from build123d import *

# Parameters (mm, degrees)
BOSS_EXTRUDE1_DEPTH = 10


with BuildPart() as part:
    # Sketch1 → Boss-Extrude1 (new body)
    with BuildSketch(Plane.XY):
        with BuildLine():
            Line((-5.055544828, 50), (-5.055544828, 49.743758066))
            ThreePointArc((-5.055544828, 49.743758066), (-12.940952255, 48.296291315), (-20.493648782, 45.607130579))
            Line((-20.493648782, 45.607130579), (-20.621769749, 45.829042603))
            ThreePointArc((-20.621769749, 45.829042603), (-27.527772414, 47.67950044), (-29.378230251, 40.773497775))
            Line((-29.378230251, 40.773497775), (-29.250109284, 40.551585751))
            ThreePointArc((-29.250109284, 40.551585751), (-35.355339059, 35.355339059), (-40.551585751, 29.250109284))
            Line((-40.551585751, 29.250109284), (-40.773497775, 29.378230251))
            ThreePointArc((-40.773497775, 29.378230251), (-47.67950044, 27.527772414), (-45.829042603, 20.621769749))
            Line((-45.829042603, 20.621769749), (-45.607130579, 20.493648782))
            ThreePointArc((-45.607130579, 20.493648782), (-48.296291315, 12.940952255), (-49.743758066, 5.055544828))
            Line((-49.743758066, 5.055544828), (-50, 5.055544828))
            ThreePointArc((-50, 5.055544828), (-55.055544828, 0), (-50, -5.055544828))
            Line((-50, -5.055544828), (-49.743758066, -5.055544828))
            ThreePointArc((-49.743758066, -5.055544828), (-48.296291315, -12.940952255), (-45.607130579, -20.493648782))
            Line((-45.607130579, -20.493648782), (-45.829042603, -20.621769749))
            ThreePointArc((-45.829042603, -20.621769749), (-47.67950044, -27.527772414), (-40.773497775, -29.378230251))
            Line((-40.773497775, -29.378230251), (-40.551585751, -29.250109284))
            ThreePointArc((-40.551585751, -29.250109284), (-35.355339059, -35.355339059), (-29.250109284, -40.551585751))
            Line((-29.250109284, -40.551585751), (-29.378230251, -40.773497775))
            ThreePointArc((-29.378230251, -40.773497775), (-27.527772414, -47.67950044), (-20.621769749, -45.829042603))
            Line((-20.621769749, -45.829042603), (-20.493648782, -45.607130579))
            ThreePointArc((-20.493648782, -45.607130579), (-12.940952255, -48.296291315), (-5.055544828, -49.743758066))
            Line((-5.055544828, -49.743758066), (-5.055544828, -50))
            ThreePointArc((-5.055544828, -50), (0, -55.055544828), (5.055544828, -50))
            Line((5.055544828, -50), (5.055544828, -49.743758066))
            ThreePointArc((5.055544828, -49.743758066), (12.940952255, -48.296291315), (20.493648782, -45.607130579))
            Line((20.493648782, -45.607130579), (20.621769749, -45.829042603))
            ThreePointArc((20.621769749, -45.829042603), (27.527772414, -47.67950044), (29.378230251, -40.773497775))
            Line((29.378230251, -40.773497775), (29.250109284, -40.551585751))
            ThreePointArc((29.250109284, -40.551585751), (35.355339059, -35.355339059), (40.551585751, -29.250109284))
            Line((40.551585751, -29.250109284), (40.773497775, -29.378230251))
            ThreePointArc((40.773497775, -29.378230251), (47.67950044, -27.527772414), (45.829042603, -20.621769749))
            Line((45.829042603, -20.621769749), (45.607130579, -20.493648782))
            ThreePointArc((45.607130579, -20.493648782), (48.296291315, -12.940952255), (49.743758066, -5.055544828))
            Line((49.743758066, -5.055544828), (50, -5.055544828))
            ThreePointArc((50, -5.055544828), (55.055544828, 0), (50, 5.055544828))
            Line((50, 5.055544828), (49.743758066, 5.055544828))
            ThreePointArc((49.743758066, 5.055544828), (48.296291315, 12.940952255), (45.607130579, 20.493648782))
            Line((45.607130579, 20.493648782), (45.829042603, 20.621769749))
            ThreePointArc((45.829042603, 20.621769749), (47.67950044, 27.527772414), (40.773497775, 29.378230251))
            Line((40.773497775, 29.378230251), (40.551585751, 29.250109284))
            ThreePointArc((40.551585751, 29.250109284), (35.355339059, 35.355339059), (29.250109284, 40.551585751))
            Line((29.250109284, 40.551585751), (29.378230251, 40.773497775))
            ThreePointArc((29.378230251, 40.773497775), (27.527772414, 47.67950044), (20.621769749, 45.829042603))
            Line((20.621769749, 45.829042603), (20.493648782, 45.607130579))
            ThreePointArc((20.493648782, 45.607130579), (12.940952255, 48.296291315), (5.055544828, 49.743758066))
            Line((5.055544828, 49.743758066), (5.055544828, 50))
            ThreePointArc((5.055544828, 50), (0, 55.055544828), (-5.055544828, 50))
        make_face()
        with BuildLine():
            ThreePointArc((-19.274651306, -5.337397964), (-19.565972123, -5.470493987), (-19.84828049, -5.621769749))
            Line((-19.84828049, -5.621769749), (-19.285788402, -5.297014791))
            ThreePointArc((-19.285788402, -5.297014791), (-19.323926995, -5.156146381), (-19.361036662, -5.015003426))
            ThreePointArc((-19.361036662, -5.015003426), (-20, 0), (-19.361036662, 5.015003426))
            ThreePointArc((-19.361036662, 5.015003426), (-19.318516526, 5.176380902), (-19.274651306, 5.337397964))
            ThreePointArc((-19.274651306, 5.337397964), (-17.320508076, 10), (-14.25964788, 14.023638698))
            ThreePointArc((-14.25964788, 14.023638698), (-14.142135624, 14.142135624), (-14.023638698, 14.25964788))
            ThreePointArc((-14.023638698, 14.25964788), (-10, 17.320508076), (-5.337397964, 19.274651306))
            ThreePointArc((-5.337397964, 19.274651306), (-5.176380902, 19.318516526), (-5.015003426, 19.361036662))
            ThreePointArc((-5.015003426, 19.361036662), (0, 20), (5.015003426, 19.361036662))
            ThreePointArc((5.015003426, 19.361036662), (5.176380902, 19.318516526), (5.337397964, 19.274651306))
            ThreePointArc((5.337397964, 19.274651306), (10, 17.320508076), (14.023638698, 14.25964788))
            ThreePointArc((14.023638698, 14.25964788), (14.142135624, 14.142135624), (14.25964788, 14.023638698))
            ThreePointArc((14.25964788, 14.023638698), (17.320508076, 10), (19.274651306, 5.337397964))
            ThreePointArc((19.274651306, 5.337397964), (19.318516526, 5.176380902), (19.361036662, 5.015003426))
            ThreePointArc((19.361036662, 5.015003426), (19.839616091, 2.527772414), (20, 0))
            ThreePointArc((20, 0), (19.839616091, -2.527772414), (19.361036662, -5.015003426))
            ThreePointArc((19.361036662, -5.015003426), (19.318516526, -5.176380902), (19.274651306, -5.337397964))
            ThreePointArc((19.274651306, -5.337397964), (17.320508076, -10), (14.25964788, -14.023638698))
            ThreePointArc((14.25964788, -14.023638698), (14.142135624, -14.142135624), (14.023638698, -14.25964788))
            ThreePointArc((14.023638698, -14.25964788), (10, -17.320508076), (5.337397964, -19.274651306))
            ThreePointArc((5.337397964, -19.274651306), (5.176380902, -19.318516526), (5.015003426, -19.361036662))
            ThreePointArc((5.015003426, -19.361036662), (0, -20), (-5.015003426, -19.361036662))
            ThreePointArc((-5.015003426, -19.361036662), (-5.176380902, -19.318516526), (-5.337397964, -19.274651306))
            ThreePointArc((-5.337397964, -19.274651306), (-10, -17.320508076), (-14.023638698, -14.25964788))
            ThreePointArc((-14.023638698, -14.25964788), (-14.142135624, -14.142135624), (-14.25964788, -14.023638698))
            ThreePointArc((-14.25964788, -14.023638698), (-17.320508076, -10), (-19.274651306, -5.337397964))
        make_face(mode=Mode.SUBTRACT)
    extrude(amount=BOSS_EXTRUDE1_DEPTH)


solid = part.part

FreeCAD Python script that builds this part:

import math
import FreeCAD as App
import Part
import Sketcher

doc = App.newDocument("Part")
body = doc.addObject("PartDesign::Body", "Body")

# Sketch on XY plane
sketch1 = doc.addObject("Sketcher::SketchObject", "Sketch")
body.addObject(sketch1)
sketch1.AttachmentSupport = (doc.XY_Plane, [""])
sketch1.MapMode = "FlatFace"
sketch1.addGeometry(Part.LineSegment(App.Vector(-5.055545, 50, 0), App.Vector(-5.055545, 49.743758, 0)), False)
sketch1.addGeometry(Part.ArcOfCircle(Part.Circle(App.Vector(0, 0, 0), App.Vector(0, 0, 1), 50), math.radians(95.803144), math.radians(114.196856)), False)
sketch1.addGeometry(Part.LineSegment(App.Vector(-20.493649, 45.607131, 0), App.Vector(-20.62177, 45.829043, 0)), False)
sketch1.addGeometry(Part.ArcOfCircle(Part.Circle(App.Vector(-25, 43.30127, 0), App.Vector(0, 0, 1), 5.055545), math.radians(30), math.radians(210)), False)
sketch1.addGeometry(Part.LineSegment(App.Vector(-29.37823, 40.773498, 0), App.Vector(-29.250109, 40.551586, 0)), False)
sketch1.addGeometry(Part.ArcOfCircle(Part.Circle(App.Vector(0, 0, 0), App.Vector(0, 0, 1), 50), math.radians(125.803144), math.radians(144.196856)), False)
sketch1.addGeometry(Part.LineSegment(App.Vector(-40.551586, 29.250109, 0), App.Vector(-40.773498, 29.37823, 0)), False)
sketch1.addGeometry(Part.ArcOfCircle(Part.Circle(App.Vector(-43.30127, 25, 0), App.Vector(0, 0, 1), 5.055545), math.radians(60), math.radians(240)), False)
sketch1.addGeometry(Part.LineSegment(App.Vector(-45.829043, 20.62177, 0), App.Vector(-45.607131, 20.493649, 0)), False)
sketch1.addGeometry(Part.ArcOfCircle(Part.Circle(App.Vector(0, 0, 0), App.Vector(0, 0, 1), 50), math.radians(155.803144), math.radians(174.196856)), False)
sketch1.addGeometry(Part.LineSegment(App.Vector(-49.743758, 5.055545, 0), App.Vector(-50, 5.055545, 0)), False)
sketch1.addGeometry(Part.ArcOfCircle(Part.Circle(App.Vector(-50, 0, 0), App.Vector(0, 0, 1), 5.055545), math.radians(90), math.radians(270)), False)
sketch1.addGeometry(Part.LineSegment(App.Vector(-50, -5.055545, 0), App.Vector(-49.743758, -5.055545, 0)), False)
sketch1.addGeometry(Part.ArcOfCircle(Part.Circle(App.Vector(0, 0, 0), App.Vector(0, 0, 1), 50), math.radians(-174.196856), math.radians(-155.803144)), False)
sketch1.addGeometry(Part.LineSegment(App.Vector(-45.607131, -20.493649, 0), App.Vector(-45.829043, -20.62177, 0)), False)
sketch1.addGeometry(Part.ArcOfCircle(Part.Circle(App.Vector(-43.30127, -25, 0), App.Vector(0, 0, 1), 5.055545), math.radians(120), math.radians(300)), False)
sketch1.addGeometry(Part.LineSegment(App.Vector(-40.773498, -29.37823, 0), App.Vector(-40.551586, -29.250109, 0)), False)
sketch1.addGeometry(Part.ArcOfCircle(Part.Circle(App.Vector(0, 0, 0), App.Vector(0, 0, 1), 50), math.radians(-144.196856), math.radians(-125.803144)), False)
sketch1.addGeometry(Part.LineSegment(App.Vector(-29.250109, -40.551586, 0), App.Vector(-29.37823, -40.773498, 0)), False)
sketch1.addGeometry(Part.ArcOfCircle(Part.Circle(App.Vector(-25, -43.30127, 0), App.Vector(0, 0, 1), 5.055545), math.radians(150), math.radians(330)), False)
sketch1.addGeometry(Part.LineSegment(App.Vector(-20.62177, -45.829043, 0), App.Vector(-20.493649, -45.607131, 0)), False)
sketch1.addGeometry(Part.ArcOfCircle(Part.Circle(App.Vector(0, 0, 0), App.Vector(0, 0, 1), 50), math.radians(-114.196856), math.radians(-95.803144)), False)
sketch1.addGeometry(Part.LineSegment(App.Vector(-5.055545, -49.743758, 0), App.Vector(-5.055545, -50, 0)), False)
sketch1.addGeometry(Part.ArcOfCircle(Part.Circle(App.Vector(0, -50, 0), App.Vector(0, 0, 1), 5.055545), math.radians(180), math.radians(360)), False)
sketch1.addGeometry(Part.LineSegment(App.Vector(5.055545, -50, 0), App.Vector(5.055545, -49.743758, 0)), False)
sketch1.addGeometry(Part.ArcOfCircle(Part.Circle(App.Vector(0, 0, 0), App.Vector(0, 0, 1), 50), math.radians(-84.196856), math.radians(-65.803144)), False)
sketch1.addGeometry(Part.LineSegment(App.Vector(20.493649, -45.607131, 0), App.Vector(20.62177, -45.829043, 0)), False)
sketch1.addGeometry(Part.ArcOfCircle(Part.Circle(App.Vector(25, -43.30127, 0), App.Vector(0, 0, 1), 5.055545), math.radians(-150), math.radians(30)), False)
sketch1.addGeometry(Part.LineSegment(App.Vector(29.37823, -40.773498, 0), App.Vector(29.250109, -40.551586, 0)), False)
sketch1.addGeometry(Part.ArcOfCircle(Part.Circle(App.Vector(0, 0, 0), App.Vector(0, 0, 1), 50), math.radians(-54.196856), math.radians(-35.803144)), False)
sketch1.addGeometry(Part.LineSegment(App.Vector(40.551586, -29.250109, 0), App.Vector(40.773498, -29.37823, 0)), False)
sketch1.addGeometry(Part.ArcOfCircle(Part.Circle(App.Vector(43.30127, -25, 0), App.Vector(0, 0, 1), 5.055545), math.radians(-120), math.radians(60)), False)
sketch1.addGeometry(Part.LineSegment(App.Vector(45.829043, -20.62177, 0), App.Vector(45.607131, -20.493649, 0)), False)
sketch1.addGeometry(Part.ArcOfCircle(Part.Circle(App.Vector(0, 0, 0), App.Vector(0, 0, 1), 50), math.radians(-24.196856), math.radians(-5.803144)), False)
sketch1.addGeometry(Part.LineSegment(App.Vector(49.743758, -5.055545, 0), App.Vector(50, -5.055545, 0)), False)
sketch1.addGeometry(Part.ArcOfCircle(Part.Circle(App.Vector(50, 0, 0), App.Vector(0, 0, 1), 5.055545), math.radians(-90), math.radians(90)), False)
sketch1.addGeometry(Part.LineSegment(App.Vector(50, 5.055545, 0), App.Vector(49.743758, 5.055545, 0)), False)
sketch1.addGeometry(Part.ArcOfCircle(Part.Circle(App.Vector(0, 0, 0), App.Vector(0, 0, 1), 50), math.radians(5.803144), math.radians(24.196856)), False)
sketch1.addGeometry(Part.LineSegment(App.Vector(45.607131, 20.493649, 0), App.Vector(45.829043, 20.62177, 0)), False)
sketch1.addGeometry(Part.ArcOfCircle(Part.Circle(App.Vector(43.30127, 25, 0), App.Vector(0, 0, 1), 5.055545), math.radians(-60), math.radians(120)), False)
sketch1.addGeometry(Part.LineSegment(App.Vector(40.773498, 29.37823, 0), App.Vector(40.551586, 29.250109, 0)), False)
sketch1.addGeometry(Part.ArcOfCircle(Part.Circle(App.Vector(0, 0, 0), App.Vector(0, 0, 1), 50), math.radians(35.803144), math.radians(54.196856)), False)
sketch1.addGeometry(Part.LineSegment(App.Vector(29.250109, 40.551586, 0), App.Vector(29.37823, 40.773498, 0)), False)
sketch1.addGeometry(Part.ArcOfCircle(Part.Circle(App.Vector(25, 43.30127, 0), App.Vector(0, 0, 1), 5.055545), math.radians(-30), math.radians(150)), False)
sketch1.addGeometry(Part.LineSegment(App.Vector(20.62177, 45.829043, 0), App.Vector(20.493649, 45.607131, 0)), False)
sketch1.addGeometry(Part.ArcOfCircle(Part.Circle(App.Vector(0, 0, 0), App.Vector(0, 0, 1), 50), math.radians(65.803144), math.radians(84.196856)), False)
sketch1.addGeometry(Part.LineSegment(App.Vector(5.055545, 49.743758, 0), App.Vector(5.055545, 50, 0)), False)
sketch1.addGeometry(Part.ArcOfCircle(Part.Circle(App.Vector(0, 50, 0), App.Vector(0, 0, 1), 5.055545), math.radians(0), math.radians(180)), False)
sketch1.addGeometry(Part.ArcOfCircle(Part.Circle(App.Vector(0, 0, 0), App.Vector(0, 0, 1), 20), math.radians(-164.521908), math.radians(-135.478092)), False)
sketch1.addGeometry(Part.ArcOfCircle(Part.Circle(App.Vector(-17.320508, -10, 0), App.Vector(0, 0, 1), 5.055545), math.radians(112.739046), math.radians(120)), False)
sketch1.addGeometry(Part.LineSegment(App.Vector(-19.84828, -5.62177, 0), App.Vector(-19.285788, -5.297015, 0)), False)
sketch1.addGeometry(Part.ArcOfCircle(Part.Circle(App.Vector(-0.000022, -0.000006, 0), App.Vector(0, 0, 1), 19.999978), math.radians(-165.478093), math.radians(-164.641916)), False)
sketch1.addGeometry(Part.ArcOfCircle(Part.Circle(App.Vector(0, 0, 0), App.Vector(0, 0, 1), 20), math.radians(165.478092), math.radians(194.521908)), False)
sketch1.addGeometry(Part.ArcOfCircle(Part.Circle(App.Vector(-0.000011, 0.000003, 0), App.Vector(0, 0, 1), 19.999989), math.radians(164.521908), math.radians(165.478092)), False)
sketch1.addGeometry(Part.ArcOfCircle(Part.Circle(App.Vector(0, 0, 0), App.Vector(0, 0, 1), 20), math.radians(135.478092), math.radians(164.521908)), False)
sketch1.addGeometry(Part.ArcOfCircle(Part.Circle(App.Vector(-0.000011, 0.000011, 0), App.Vector(0, 0, 1), 19.999984), math.radians(134.521908), math.radians(135.478092)), False)
sketch1.addGeometry(Part.ArcOfCircle(Part.Circle(App.Vector(0, 0, 0), App.Vector(0, 0, 1), 20), math.radians(105.478092), math.radians(134.521908)), False)
sketch1.addGeometry(Part.ArcOfCircle(Part.Circle(App.Vector(-0.000003, 0.000011, 0), App.Vector(0, 0, 1), 19.999989), math.radians(104.521908), math.radians(105.478092)), False)
sketch1.addGeometry(Part.ArcOfCircle(Part.Circle(App.Vector(0, 0, 0), App.Vector(0, 0, 1), 20), math.radians(75.478092), math.radians(104.521908)), False)
sketch1.addGeometry(Part.ArcOfCircle(Part.Circle(App.Vector(0.000003, 0.000011, 0), App.Vector(0, 0, 1), 19.999989), math.radians(74.521908), math.radians(75.478092)), False)
sketch1.addGeometry(Part.ArcOfCircle(Part.Circle(App.Vector(0, 0, 0), App.Vector(0, 0, 1), 20), math.radians(45.478092), math.radians(74.521908)), False)
sketch1.addGeometry(Part.ArcOfCircle(Part.Circle(App.Vector(0.000011, 0.000011, 0), App.Vector(0, 0, 1), 19.999984), math.radians(44.521908), math.radians(45.478092)), False)
sketch1.addGeometry(Part.ArcOfCircle(Part.Circle(App.Vector(0, 0, 0), App.Vector(0, 0, 1), 20), math.radians(15.478092), math.radians(44.521908)), False)
sketch1.addGeometry(Part.ArcOfCircle(Part.Circle(App.Vector(0.000011, 0.000003, 0), App.Vector(0, 0, 1), 19.999989), math.radians(14.521908), math.radians(15.478092)), False)
sketch1.addGeometry(Part.ArcOfCircle(Part.Circle(App.Vector(0, 0, 0), App.Vector(0, 0, 1), 20), math.radians(0), math.radians(14.521908)), False)
sketch1.addGeometry(Part.ArcOfCircle(Part.Circle(App.Vector(0, 0, 0), App.Vector(0, 0, 1), 20), math.radians(-14.521908), math.radians(0)), False)
sketch1.addGeometry(Part.ArcOfCircle(Part.Circle(App.Vector(0.000011, -0.000003, 0), App.Vector(0, 0, 1), 19.999989), math.radians(-15.478092), math.radians(-14.521908)), False)
sketch1.addGeometry(Part.ArcOfCircle(Part.Circle(App.Vector(0, 0, 0), App.Vector(0, 0, 1), 20), math.radians(-44.521908), math.radians(-15.478092)), False)
sketch1.addGeometry(Part.ArcOfCircle(Part.Circle(App.Vector(0.000011, -0.000011, 0), App.Vector(0, 0, 1), 19.999984), math.radians(-45.478092), math.radians(-44.521908)), False)
sketch1.addGeometry(Part.ArcOfCircle(Part.Circle(App.Vector(0, 0, 0), App.Vector(0, 0, 1), 20), math.radians(-74.521908), math.radians(-45.478092)), False)
sketch1.addGeometry(Part.ArcOfCircle(Part.Circle(App.Vector(0.000003, -0.000011, 0), App.Vector(0, 0, 1), 19.999989), math.radians(-75.478092), math.radians(-74.521908)), False)
sketch1.addGeometry(Part.ArcOfCircle(Part.Circle(App.Vector(0, 0, 0), App.Vector(0, 0, 1), 20), math.radians(-104.521908), math.radians(-75.478092)), False)
sketch1.addGeometry(Part.ArcOfCircle(Part.Circle(App.Vector(-0.000003, -0.000011, 0), App.Vector(0, 0, 1), 19.999989), math.radians(-105.478092), math.radians(-104.521908)), False)
sketch1.addGeometry(Part.ArcOfCircle(Part.Circle(App.Vector(0, 0, 0), App.Vector(0, 0, 1), 20), math.radians(-134.521908), math.radians(-105.478092)), False)
sketch1.addGeometry(Part.ArcOfCircle(Part.Circle(App.Vector(-0.000011, -0.000011, 0), App.Vector(0, 0, 1), 19.999984), math.radians(-135.478092), math.radians(-134.521908)), False)
sketch1.addConstraint(Sketcher.Constraint("Coincident", 0, 2, 1, 1))
sketch1.addConstraint(Sketcher.Constraint("Coincident", 1, 2, 2, 1))
sketch1.addConstraint(Sketcher.Constraint("Tangent", 2, 2, 3, 1))
sketch1.addConstraint(Sketcher.Constraint("Tangent", 3, 2, 4, 1))
sketch1.addConstraint(Sketcher.Constraint("Coincident", 4, 2, 5, 1))
sketch1.addConstraint(Sketcher.Constraint("Coincident", 5, 2, 6, 1))
sketch1.addConstraint(Sketcher.Constraint("Tangent", 6, 2, 7, 1))
sketch1.addConstraint(Sketcher.Constraint("Tangent", 7, 2, 8, 1))
sketch1.addConstraint(Sketcher.Constraint("Coincident", 8, 2, 9, 1))
sketch1.addConstraint(Sketcher.Constraint("Coincident", 9, 2, 10, 1))
sketch1.addConstraint(Sketcher.Constraint("Tangent", 10, 2, 11, 1))
sketch1.addConstraint(Sketcher.Constraint("Tangent", 11, 2, 12, 1))
sketch1.addConstraint(Sketcher.Constraint("Coincident", 12, 2, 13, 1))
sketch1.addConstraint(Sketcher.Constraint("Coincident", 13, 2, 14, 1))
sketch1.addConstraint(Sketcher.Constraint("Tangent", 14, 2, 15, 1))
sketch1.addConstraint(Sketcher.Constraint("Tangent", 15, 2, 16, 1))
sketch1.addConstraint(Sketcher.Constraint("Coincident", 16, 2, 17, 1))
sketch1.addConstraint(Sketcher.Constraint("Coincident", 17, 2, 18, 1))
sketch1.addConstraint(Sketcher.Constraint("Tangent", 18, 2, 19, 1))
sketch1.addConstraint(Sketcher.Constraint("Tangent", 19, 2, 20, 1))
sketch1.addConstraint(Sketcher.Constraint("Coincident", 20, 2, 21, 1))
sketch1.addConstraint(Sketcher.Constraint("Coincident", 21, 2, 22, 1))
sketch1.addConstraint(Sketcher.Constraint("Tangent", 22, 2, 23, 1))
sketch1.addConstraint(Sketcher.Constraint("Tangent", 23, 2, 24, 1))
sketch1.addConstraint(Sketcher.Constraint("Coincident", 24, 2, 25, 1))
sketch1.addConstraint(Sketcher.Constraint("Coincident", 25, 2, 26, 1))
sketch1.addConstraint(Sketcher.Constraint("Tangent", 26, 2, 27, 1))
sketch1.addConstraint(Sketcher.Constraint("Tangent", 27, 2, 28, 1))
sketch1.addConstraint(Sketcher.Constraint("Coincident", 28, 2, 29, 1))
sketch1.addConstraint(Sketcher.Constraint("Coincident", 29, 2, 30, 1))
sketch1.addConstraint(Sketcher.Constraint("Tangent", 30, 2, 31, 1))
sketch1.addConstraint(Sketcher.Constraint("Tangent", 31, 2, 32, 1))
sketch1.addConstraint(Sketcher.Constraint("Coincident", 32, 2, 33, 1))
sketch1.addConstraint(Sketcher.Constraint("Coincident", 33, 2, 34, 1))
sketch1.addConstraint(Sketcher.Constraint("Tangent", 34, 2, 35, 1))
sketch1.addConstraint(Sketcher.Constraint("Tangent", 35, 2, 36, 1))
sketch1.addConstraint(Sketcher.Constraint("Coincident", 36, 2, 37, 1))
sketch1.addConstraint(Sketcher.Constraint("Coincident", 37, 2, 38, 1))
sketch1.addConstraint(Sketcher.Constraint("Tangent", 38, 2, 39, 1))
sketch1.addConstraint(Sketcher.Constraint("Tangent", 39, 2, 40, 1))
sketch1.addConstraint(Sketcher.Constraint("Coincident", 40, 2, 41, 1))
sketch1.addConstraint(Sketcher.Constraint("Coincident", 41, 2, 42, 1))
sketch1.addConstraint(Sketcher.Constraint("Tangent", 42, 2, 43, 1))
sketch1.addConstraint(Sketcher.Constraint("Tangent", 43, 2, 44, 1))
sketch1.addConstraint(Sketcher.Constraint("Coincident", 44, 2, 45, 1))
sketch1.addConstraint(Sketcher.Constraint("Coincident", 45, 2, 46, 1))
sketch1.addConstraint(Sketcher.Constraint("Tangent", 46, 2, 47, 1))
sketch1.addConstraint(Sketcher.Constraint("Tangent", 47, 2, 0, 1))
sketch1.addConstraint(Sketcher.Constraint("Coincident", 48, 1, 49, 1))
sketch1.addConstraint(Sketcher.Constraint("Tangent", 49, 2, 50, 1))
sketch1.addConstraint(Sketcher.Constraint("Coincident", 50, 2, 51, 2))
sketch1.addConstraint(Sketcher.Constraint("Tangent", 51, 1, 52, 2))
sketch1.addConstraint(Sketcher.Constraint("Tangent", 52, 1, 53, 2))
sketch1.addConstraint(Sketcher.Constraint("Tangent", 53, 1, 54, 2))
sketch1.addConstraint(Sketcher.Constraint("Tangent", 54, 1, 55, 2))
sketch1.addConstraint(Sketcher.Constraint("Tangent", 55, 1, 56, 2))
sketch1.addConstraint(Sketcher.Constraint("Tangent", 56, 1, 57, 2))
sketch1.addConstraint(Sketcher.Constraint("Tangent", 57, 1, 58, 2))
sketch1.addConstraint(Sketcher.Constraint("Tangent", 58, 1, 59, 2))
sketch1.addConstraint(Sketcher.Constraint("Tangent", 59, 1, 60, 2))
sketch1.addConstraint(Sketcher.Constraint("Tangent", 60, 1, 61, 2))
sketch1.addConstraint(Sketcher.Constraint("Tangent", 61, 1, 62, 2))
sketch1.addConstraint(Sketcher.Constraint("Tangent", 62, 1, 63, 2))
sketch1.addConstraint(Sketcher.Constraint("Tangent", 63, 1, 64, 2))
sketch1.addConstraint(Sketcher.Constraint("Tangent", 64, 1, 65, 2))
sketch1.addConstraint(Sketcher.Constraint("Tangent", 65, 1, 66, 2))
sketch1.addConstraint(Sketcher.Constraint("Tangent", 66, 1, 67, 2))
sketch1.addConstraint(Sketcher.Constraint("Tangent", 67, 1, 68, 2))
sketch1.addConstraint(Sketcher.Constraint("Tangent", 68, 1, 69, 2))
sketch1.addConstraint(Sketcher.Constraint("Tangent", 69, 1, 70, 2))
sketch1.addConstraint(Sketcher.Constraint("Tangent", 70, 1, 71, 2))
sketch1.addConstraint(Sketcher.Constraint("Tangent", 71, 1, 72, 2))
sketch1.addConstraint(Sketcher.Constraint("Tangent", 72, 1, 73, 2))
sketch1.addConstraint(Sketcher.Constraint("Tangent", 73, 1, 74, 2))
sketch1.addConstraint(Sketcher.Constraint("Tangent", 74, 1, 48, 2))
sketch1.addConstraint(Sketcher.Constraint("Vertical", 0))
sketch1.addConstraint(Sketcher.Constraint("Horizontal", 10))
sketch1.addConstraint(Sketcher.Constraint("Horizontal", 12))
sketch1.addConstraint(Sketcher.Constraint("Vertical", 22))
sketch1.addConstraint(Sketcher.Constraint("Vertical", 24))
sketch1.addConstraint(Sketcher.Constraint("Horizontal", 34))
sketch1.addConstraint(Sketcher.Constraint("Horizontal", 36))
sketch1.addConstraint(Sketcher.Constraint("Vertical", 46))
sketch1.addConstraint(Sketcher.Constraint("Coincident", 1, 3, -1, 1))
sketch1.addConstraint(Sketcher.Constraint("Coincident", 5, 3, -1, 1))
sketch1.addConstraint(Sketcher.Constraint("Coincident", 9, 3, -1, 1))
sketch1.addConstraint(Sketcher.Constraint("Coincident", 13, 3, -1, 1))
sketch1.addConstraint(Sketcher.Constraint("Coincident", 17, 3, -1, 1))
sketch1.addConstraint(Sketcher.Constraint("Coincident", 21, 3, -1, 1))
sketch1.addConstraint(Sketcher.Constraint("Coincident", 25, 3, -1, 1))
sketch1.addConstraint(Sketcher.Constraint("Coincident", 29, 3, -1, 1))
sketch1.addConstraint(Sketcher.Constraint("Coincident", 33, 3, -1, 1))
sketch1.addConstraint(Sketcher.Constraint("Coincident", 37, 3, -1, 1))
sketch1.addConstraint(Sketcher.Constraint("Coincident", 41, 3, -1, 1))
sketch1.addConstraint(Sketcher.Constraint("Coincident", 45, 3, -1, 1))
sketch1.addConstraint(Sketcher.Constraint("Coincident", 48, 3, -1, 1))
sketch1.addConstraint(Sketcher.Constraint("Coincident", 52, 3, -1, 1))
sketch1.addConstraint(Sketcher.Constraint("Coincident", 54, 3, -1, 1))
sketch1.addConstraint(Sketcher.Constraint("Coincident", 56, 3, -1, 1))
sketch1.addConstraint(Sketcher.Constraint("Coincident", 58, 3, -1, 1))
sketch1.addConstraint(Sketcher.Constraint("Coincident", 60, 3, -1, 1))
sketch1.addConstraint(Sketcher.Constraint("Coincident", 62, 3, -1, 1))
sketch1.addConstraint(Sketcher.Constraint("Coincident", 64, 3, -1, 1))
sketch1.addConstraint(Sketcher.Constraint("Coincident", 67, 3, -1, 1))
sketch1.addConstraint(Sketcher.Constraint("Coincident", 69, 3, -1, 1))
sketch1.addConstraint(Sketcher.Constraint("Coincident", 71, 3, -1, 1))
sketch1.addConstraint(Sketcher.Constraint("Coincident", 73, 3, -1, 1))
sketch1.addConstraint(Sketcher.Constraint("Equal", 1, 5))
sketch1.addConstraint(Sketcher.Constraint("Equal", 3, 7))
sketch1.addConstraint(Sketcher.Constraint("Equal", 5, 9))
sketch1.addConstraint(Sketcher.Constraint("Equal", 7, 11))
sketch1.addConstraint(Sketcher.Constraint("Equal", 9, 13))
sketch1.addConstraint(Sketcher.Constraint("Equal", 11, 15))
sketch1.addConstraint(Sketcher.Constraint("Equal", 13, 17))
sketch1.addConstraint(Sketcher.Constraint("Equal", 15, 19))
sketch1.addConstraint(Sketcher.Constraint("Equal", 17, 21))
sketch1.addConstraint(Sketcher.Constraint("Equal", 19, 23))
sketch1.addConstraint(Sketcher.Constraint("Equal", 21, 25))
sketch1.addConstraint(Sketcher.Constraint("Equal", 23, 27))
sketch1.addConstraint(Sketcher.Constraint("Equal", 25, 29))
sketch1.addConstraint(Sketcher.Constraint("Equal", 27, 31))
sketch1.addConstraint(Sketcher.Constraint("Equal", 29, 33))
sketch1.addConstraint(Sketcher.Constraint("Equal", 31, 35))
sketch1.addConstraint(Sketcher.Constraint("Equal", 33, 37))
sketch1.addConstraint(Sketcher.Constraint("Equal", 35, 39))
sketch1.addConstraint(Sketcher.Constraint("Equal", 37, 41))
sketch1.addConstraint(Sketcher.Constraint("Equal", 39, 43))
sketch1.addConstraint(Sketcher.Constraint("Equal", 41, 45))
sketch1.addConstraint(Sketcher.Constraint("Equal", 43, 47))
sketch1.addConstraint(Sketcher.Constraint("Equal", 47, 49))
sketch1.addConstraint(Sketcher.Constraint("Equal", 64, 65))
sketch1.addConstraint(Sketcher.Constraint("Symmetric", 3, 3, 27, 3, -1, 1))
sketch1.addConstraint(Sketcher.Constraint("Symmetric", 7, 3, 31, 3, -1, 1))
sketch1.addConstraint(Sketcher.Constraint("Symmetric", 11, 3, 35, 3, -1, 1))
sketch1.addConstraint(Sketcher.Constraint("Symmetric", 15, 3, 39, 3, -1, 1))
sketch1.addConstraint(Sketcher.Constraint("Symmetric", 19, 3, 43, 3, -1, 1))
sketch1.addConstraint(Sketcher.Constraint("Symmetric", 23, 3, 47, 3, -1, 1))
sketch1.addConstraint(Sketcher.Constraint("Symmetric", 19, 3, 27, 3, -2))
sketch1.addConstraint(Sketcher.Constraint("Symmetric", 15, 3, 31, 3, -2))
sketch1.addConstraint(Sketcher.Constraint("PointOnObject", 11, 3, -1))
sketch1.addConstraint(Sketcher.Constraint("PointOnObject", 23, 3, -2))
sketch1.addConstraint(Sketcher.Constraint("PointOnObject", 64, 1, -1))
sketch1.addConstraint(Sketcher.Constraint("Parallel", 2, 4))
sketch1.addConstraint(Sketcher.Constraint("Parallel", 6, 8))
sketch1.addConstraint(Sketcher.Constraint("Perpendicular", 4, 14))
sketch1.addConstraint(Sketcher.Constraint("Parallel", 14, 16))
sketch1.addConstraint(Sketcher.Constraint("Perpendicular", 8, 18))
sketch1.addConstraint(Sketcher.Constraint("Parallel", 18, 20))
sketch1.addConstraint(Sketcher.Constraint("Perpendicular", 16, 26))
sketch1.addConstraint(Sketcher.Constraint("Parallel", 26, 28))
sketch1.addConstraint(Sketcher.Constraint("Perpendicular", 20, 30))
sketch1.addConstraint(Sketcher.Constraint("Parallel", 30, 32))
sketch1.addConstraint(Sketcher.Constraint("Perpendicular", 28, 38))
sketch1.addConstraint(Sketcher.Constraint("Parallel", 38, 40))
sketch1.addConstraint(Sketcher.Constraint("Perpendicular", 32, 42))
sketch1.addConstraint(Sketcher.Constraint("Parallel", 42, 44))
sketch1.addConstraint(Sketcher.Constraint("Parallel", 40, 50))
sketch1.addConstraint(Sketcher.Constraint("Horizontal", 19, 2, 26, 2))
sketch1.addConstraint(Sketcher.Constraint("Horizontal", 57, 1, 58, 1))
sketch1.addConstraint(Sketcher.Constraint("Horizontal", 56, 1, 59, 1))
sketch1.addConstraint(Sketcher.Constraint("Horizontal", 55, 1, 60, 1))
sketch1.addConstraint(Sketcher.Constraint("Horizontal", 54, 1, 61, 1))
sketch1.addConstraint(Sketcher.Constraint("Horizontal", 53, 1, 62, 1))
sketch1.addConstraint(Sketcher.Constraint("Horizontal", 52, 1, 63, 1))
sketch1.addConstraint(Sketcher.Constraint("Horizontal", 51, 1, 65, 1))
sketch1.addConstraint(Sketcher.Constraint("Horizontal", 48, 1, 66, 1))
sketch1.addConstraint(Sketcher.Constraint("Horizontal", 70, 1, 71, 1))
sketch1.addConstraint(Sketcher.Constraint("Horizontal", 69, 1, 72, 1))
sketch1.addConstraint(Sketcher.Constraint("Horizontal", 68, 1, 73, 1))
sketch1.addConstraint(Sketcher.Constraint("Horizontal", 67, 1, 74, 1))
sketch1.addConstraint(Sketcher.Constraint("Vertical", 51, 1, 52, 1))
sketch1.addConstraint(Sketcher.Constraint("Vertical", 48, 1, 53, 1))
sketch1.addConstraint(Sketcher.Constraint("Vertical", 61, 1, 67, 1))
sketch1.addConstraint(Sketcher.Constraint("Vertical", 60, 1, 68, 1))
sketch1.addConstraint(Sketcher.Constraint("Vertical", 59, 1, 69, 1))
sketch1.addConstraint(Sketcher.Constraint("Vertical", 58, 1, 70, 1))
sketch1.addConstraint(Sketcher.Constraint("Equal", 36, 0))
sketch1.addConstraint(Sketcher.Constraint("Equal", 2, 4))
sketch1.addConstraint(Sketcher.Constraint("Equal", 4, 6))
sketch1.addConstraint(Sketcher.Constraint("Equal", 6, 8))
sketch1.addConstraint(Sketcher.Constraint("Radius", 1, 50.0))
sketch1.addConstraint(Sketcher.Constraint("Radius", 48, 20.0))
sketch1.addConstraint(Sketcher.Constraint("DistanceX", 3, 3, -1, 1, 25.0))
sketch1.addConstraint(Sketcher.Constraint("DistanceX", 11, 3, -1, 1, 50.0))
sketch1.addConstraint(Sketcher.Constraint("DistanceY", 49, 3, -1, 1, 10.0))
sketch1.addConstraint(Sketcher.Constraint("Radius", 3, 5.055545))
sketch1.addConstraint(Sketcher.Constraint("Radius", 51, 19.999978))
sketch1.addConstraint(Sketcher.Constraint("Distance", 2, 0.256242))
sketch1.addConstraint(Sketcher.Constraint("Distance", 50, 0.64951))
sketch1.addConstraint(Sketcher.Constraint("DistanceY", -1, 1, 54, 1, 14.023639))
sketch1.addConstraint(Sketcher.Constraint("DistanceX", 55, 1, -1, 1, 14.023639))
sketch1.addConstraint(Sketcher.Constraint("DistanceY", -1, 1, 56, 1, 19.274651))
sketch1.addConstraint(Sketcher.Constraint("DistanceX", 51, 1, -1, 1, 19.361037))
sketch1.addConstraint(Sketcher.Constraint("DistanceX", 57, 1, -1, 1, 5.015003))
pad1 = doc.addObject("PartDesign::Pad", "Pad")
body.addObject(pad1)
pad1.Profile = sketch1
pad1.Length = 10

doc.recompute()
